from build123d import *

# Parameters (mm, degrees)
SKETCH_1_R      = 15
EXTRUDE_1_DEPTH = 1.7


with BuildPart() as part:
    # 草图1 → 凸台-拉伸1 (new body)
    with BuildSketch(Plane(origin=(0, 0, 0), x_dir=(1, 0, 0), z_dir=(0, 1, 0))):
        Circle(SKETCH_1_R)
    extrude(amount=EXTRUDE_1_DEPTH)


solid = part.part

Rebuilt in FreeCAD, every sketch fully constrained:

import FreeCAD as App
import Part
import Sketcher

doc = App.newDocument("Part")
params = doc.addObject("Spreadsheet::Sheet", "Params")
for row, (alias, value) in enumerate([
    ("sketch1_diameter", "30 mm"),
    ("pad1_length", "1.7 mm"),
], start=1):
    params.set(f"A{row}", alias)
    params.set(f"B{row}", "=" + value)
    params.setAlias(f"B{row}", alias)

body = doc.addObject("PartDesign::Body", "Body")

# Sketch on XZ plane
sketch1 = doc.addObject("Sketcher::SketchObject", "Sketch")
body.addObject(sketch1)
sketch1.AttachmentSupport = (doc.XZ_Plane, [""])
sketch1.MapMode = "FlatFace"
sketch1.addGeometry(Part.Circle(App.Vector(0, 0, 0), App.Vector(0, 0, 1), 15), False)
sketch1.addConstraint(Sketcher.Constraint("Coincident", 0, 3, -1, 1))
sketch1.addConstraint(Sketcher.Constraint("Diameter", 0, 30.0))
sketch1.setExpression("Constraints[1]", "Params.sketch1_diameter")
pad1 = doc.addObject("PartDesign::Pad", "Pad")
body.addObject(pad1)
pad1.Profile = sketch1
pad1.setExpression("Length", "Params.pad1_length")
pad1.Reversed = True

doc.recompute()
